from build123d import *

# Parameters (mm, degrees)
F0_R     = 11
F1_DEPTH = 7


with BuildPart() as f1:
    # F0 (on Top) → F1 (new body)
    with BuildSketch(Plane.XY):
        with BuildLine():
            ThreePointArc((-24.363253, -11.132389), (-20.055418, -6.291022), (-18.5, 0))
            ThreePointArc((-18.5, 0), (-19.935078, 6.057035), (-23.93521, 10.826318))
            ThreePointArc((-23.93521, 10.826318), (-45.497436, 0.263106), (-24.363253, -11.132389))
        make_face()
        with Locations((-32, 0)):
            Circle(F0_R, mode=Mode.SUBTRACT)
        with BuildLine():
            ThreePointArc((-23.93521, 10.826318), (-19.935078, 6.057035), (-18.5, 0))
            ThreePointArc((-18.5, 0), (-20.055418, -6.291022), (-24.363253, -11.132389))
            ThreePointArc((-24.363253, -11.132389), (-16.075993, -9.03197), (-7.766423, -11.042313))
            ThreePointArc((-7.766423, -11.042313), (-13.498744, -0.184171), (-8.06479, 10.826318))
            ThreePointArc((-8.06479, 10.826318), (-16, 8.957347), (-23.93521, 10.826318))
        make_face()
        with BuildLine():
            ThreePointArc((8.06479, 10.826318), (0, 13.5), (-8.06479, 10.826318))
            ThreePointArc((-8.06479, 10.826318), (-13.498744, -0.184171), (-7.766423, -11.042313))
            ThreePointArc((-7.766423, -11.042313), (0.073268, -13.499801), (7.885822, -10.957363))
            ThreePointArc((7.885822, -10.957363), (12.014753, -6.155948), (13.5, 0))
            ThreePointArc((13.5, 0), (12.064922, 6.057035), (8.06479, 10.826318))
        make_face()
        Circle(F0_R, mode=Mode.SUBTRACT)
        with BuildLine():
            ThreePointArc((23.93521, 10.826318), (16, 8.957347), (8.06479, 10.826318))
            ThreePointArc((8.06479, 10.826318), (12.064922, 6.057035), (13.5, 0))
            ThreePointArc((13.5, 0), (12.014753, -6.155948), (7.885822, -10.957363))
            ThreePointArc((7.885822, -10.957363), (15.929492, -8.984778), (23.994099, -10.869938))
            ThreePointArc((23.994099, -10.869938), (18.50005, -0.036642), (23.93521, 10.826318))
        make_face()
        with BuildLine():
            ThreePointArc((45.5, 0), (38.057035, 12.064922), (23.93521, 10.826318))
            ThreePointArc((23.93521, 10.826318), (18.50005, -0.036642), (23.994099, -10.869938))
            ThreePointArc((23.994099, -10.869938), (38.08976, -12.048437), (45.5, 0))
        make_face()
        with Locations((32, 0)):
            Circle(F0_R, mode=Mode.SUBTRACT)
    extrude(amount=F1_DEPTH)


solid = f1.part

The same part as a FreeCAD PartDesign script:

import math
import FreeCAD as App
import Part
import Sketcher

V = App.Vector

doc = App.newDocument("Part")
body = doc.addObject("PartDesign::Body", "Body")

# Sketch on XY plane
sketch1 = body.newObject("Sketcher::SketchObject", "Sketch")
sketch1.AttachmentSupport = (doc.getObject("XY_Plane"), [""])
sketch1.MapMode = "FlatFace"
sketch1.addGeometry([
    Part.ArcOfCircle(Part.Circle(V(-32, 0, 0), V(0, 0, 1), 13), math.radians(53), math.radians(304)),  # 0
    Part.ArcOfCircle(Part.Circle(V(-16, -27, 0), V(0, 0, 1), 18), math.radians(62), math.radians(118)),  # 1
    Part.ArcOfCircle(Part.Circle(V(0, 0, 0), V(0, 0, 1), 14), math.radians(-125), math.radians(-54)),  # 2
    Part.ArcOfCircle(Part.Circle(V(16, -27, 0), V(0, 0, 1), 18), math.radians(63), math.radians(117)),  # 3
    Part.ArcOfCircle(Part.Circle(V(32, 0, 0), V(0, 0, 1), 13), math.radians(-126), math.radians(0)),  # 4
    Part.ArcOfCircle(Part.Circle(V(32, 0, 0), V(0, 0, 1), 13), math.radians(0), math.radians(127)),  # 5
    Part.ArcOfCircle(Part.Circle(V(16, 27, 0), V(0, 0, 1), 18), math.radians(-117), math.radians(-63)),  # 6
    Part.ArcOfCircle(Part.Circle(V(0, 0, 0), V(0, 0, 1), 13), math.radians(53), math.radians(127)),  # 7
    Part.ArcOfCircle(Part.Circle(V(-16, 27, 0), V(0, 0, 1), 18), math.radians(-117), math.radians(-63)),  # 8
    Part.Circle(V(-32, 0, 0), V(0, 0, 1), 11),  # 9
    Part.Circle(V(0, 0, 0), V(0, 0, 1), 11),  # 10
    Part.Circle(V(32, 0, 0), V(0, 0, 1), 11),  # 11
], False)
sketch1.addConstraint([
    Sketcher.Constraint("Coincident", 0, 2, 1, 2),
    Sketcher.Constraint("Coincident", 1, 1, 2, 1),
    Sketcher.Constraint("Coincident", 2, 2, 3, 2),
    Sketcher.Constraint("Coincident", 3, 1, 4, 1),
    Sketcher.Constraint("Tangent", 4, 2, 5, 1),
    Sketcher.Constraint("Coincident", 5, 2, 6, 2),
    Sketcher.Constraint("Coincident", 6, 1, 7, 1),
    Sketcher.Constraint("Coincident", 7, 2, 8, 2),
    Sketcher.Constraint("Coincident", 8, 1, 0, 1),
    Sketcher.Constraint("Coincident", 2, 3, -1, 1),
    Sketcher.Constraint("Coincident", 7, 3, -1, 1),
    Sketcher.Constraint("Coincident", 10, 3, -1, 1),
    Sketcher.Constraint("Coincident", 9, 3, 0, 3),
    Sketcher.Constraint("Coincident", 11, 3, 4, 3),
    Sketcher.Constraint("Equal", 0, 2),
    Sketcher.Constraint("Equal", 2, 4),
    Sketcher.Constraint("Equal", 4, 5),
    Sketcher.Constraint("Equal", 3, 6),
    Sketcher.Constraint("Equal", 5, 7),
    Sketcher.Constraint("Equal", 6, 8),
    Sketcher.Constraint("Equal", 9, 10),
    Sketcher.Constraint("Equal", 10, 11),
    Sketcher.Constraint("Symmetric", 0, 3, 4, 3, -1, 1),
    Sketcher.Constraint("Symmetric", 6, 3, 8, 3, -2),
    Sketcher.Constraint("PointOnObject", 0, 3, -1),
    Sketcher.Constraint("PointOnObject", 4, 2, -1),
    Sketcher.Constraint("Horizontal", 5, 2, 6, 1),
    Sketcher.Constraint("Diameter", 9, 22.0),
    Sketcher.Constraint("Radius", 0, 13.5),
    Sketcher.Constraint("Radius", 3, 17.78),
    Sketcher.Constraint("DistanceX", 0, 3, -1, 1, 32.0),
    Sketcher.Constraint("Radius", 1, 17.780003),
    Sketcher.Constraint("DistanceX", -1, 1, 3, 1, 23.994099),
    Sketcher.Constraint("DistanceY", 1, 3, -1, 1, 26.811711),
    Sketcher.Constraint("DistanceX", -1, 1, 3, 3, 16.025988),
    Sketcher.Constraint("DistanceY", 0, 2, -1, 1, 11.132389),
    Sketcher.Constraint("DistanceX", -1, 1, 5, 2, 23.93521),
])
pad1 = body.newObject("PartDesign::Pad", "Pad")
pad1.Profile = sketch1
pad1.Length = 7

doc.recompute()
